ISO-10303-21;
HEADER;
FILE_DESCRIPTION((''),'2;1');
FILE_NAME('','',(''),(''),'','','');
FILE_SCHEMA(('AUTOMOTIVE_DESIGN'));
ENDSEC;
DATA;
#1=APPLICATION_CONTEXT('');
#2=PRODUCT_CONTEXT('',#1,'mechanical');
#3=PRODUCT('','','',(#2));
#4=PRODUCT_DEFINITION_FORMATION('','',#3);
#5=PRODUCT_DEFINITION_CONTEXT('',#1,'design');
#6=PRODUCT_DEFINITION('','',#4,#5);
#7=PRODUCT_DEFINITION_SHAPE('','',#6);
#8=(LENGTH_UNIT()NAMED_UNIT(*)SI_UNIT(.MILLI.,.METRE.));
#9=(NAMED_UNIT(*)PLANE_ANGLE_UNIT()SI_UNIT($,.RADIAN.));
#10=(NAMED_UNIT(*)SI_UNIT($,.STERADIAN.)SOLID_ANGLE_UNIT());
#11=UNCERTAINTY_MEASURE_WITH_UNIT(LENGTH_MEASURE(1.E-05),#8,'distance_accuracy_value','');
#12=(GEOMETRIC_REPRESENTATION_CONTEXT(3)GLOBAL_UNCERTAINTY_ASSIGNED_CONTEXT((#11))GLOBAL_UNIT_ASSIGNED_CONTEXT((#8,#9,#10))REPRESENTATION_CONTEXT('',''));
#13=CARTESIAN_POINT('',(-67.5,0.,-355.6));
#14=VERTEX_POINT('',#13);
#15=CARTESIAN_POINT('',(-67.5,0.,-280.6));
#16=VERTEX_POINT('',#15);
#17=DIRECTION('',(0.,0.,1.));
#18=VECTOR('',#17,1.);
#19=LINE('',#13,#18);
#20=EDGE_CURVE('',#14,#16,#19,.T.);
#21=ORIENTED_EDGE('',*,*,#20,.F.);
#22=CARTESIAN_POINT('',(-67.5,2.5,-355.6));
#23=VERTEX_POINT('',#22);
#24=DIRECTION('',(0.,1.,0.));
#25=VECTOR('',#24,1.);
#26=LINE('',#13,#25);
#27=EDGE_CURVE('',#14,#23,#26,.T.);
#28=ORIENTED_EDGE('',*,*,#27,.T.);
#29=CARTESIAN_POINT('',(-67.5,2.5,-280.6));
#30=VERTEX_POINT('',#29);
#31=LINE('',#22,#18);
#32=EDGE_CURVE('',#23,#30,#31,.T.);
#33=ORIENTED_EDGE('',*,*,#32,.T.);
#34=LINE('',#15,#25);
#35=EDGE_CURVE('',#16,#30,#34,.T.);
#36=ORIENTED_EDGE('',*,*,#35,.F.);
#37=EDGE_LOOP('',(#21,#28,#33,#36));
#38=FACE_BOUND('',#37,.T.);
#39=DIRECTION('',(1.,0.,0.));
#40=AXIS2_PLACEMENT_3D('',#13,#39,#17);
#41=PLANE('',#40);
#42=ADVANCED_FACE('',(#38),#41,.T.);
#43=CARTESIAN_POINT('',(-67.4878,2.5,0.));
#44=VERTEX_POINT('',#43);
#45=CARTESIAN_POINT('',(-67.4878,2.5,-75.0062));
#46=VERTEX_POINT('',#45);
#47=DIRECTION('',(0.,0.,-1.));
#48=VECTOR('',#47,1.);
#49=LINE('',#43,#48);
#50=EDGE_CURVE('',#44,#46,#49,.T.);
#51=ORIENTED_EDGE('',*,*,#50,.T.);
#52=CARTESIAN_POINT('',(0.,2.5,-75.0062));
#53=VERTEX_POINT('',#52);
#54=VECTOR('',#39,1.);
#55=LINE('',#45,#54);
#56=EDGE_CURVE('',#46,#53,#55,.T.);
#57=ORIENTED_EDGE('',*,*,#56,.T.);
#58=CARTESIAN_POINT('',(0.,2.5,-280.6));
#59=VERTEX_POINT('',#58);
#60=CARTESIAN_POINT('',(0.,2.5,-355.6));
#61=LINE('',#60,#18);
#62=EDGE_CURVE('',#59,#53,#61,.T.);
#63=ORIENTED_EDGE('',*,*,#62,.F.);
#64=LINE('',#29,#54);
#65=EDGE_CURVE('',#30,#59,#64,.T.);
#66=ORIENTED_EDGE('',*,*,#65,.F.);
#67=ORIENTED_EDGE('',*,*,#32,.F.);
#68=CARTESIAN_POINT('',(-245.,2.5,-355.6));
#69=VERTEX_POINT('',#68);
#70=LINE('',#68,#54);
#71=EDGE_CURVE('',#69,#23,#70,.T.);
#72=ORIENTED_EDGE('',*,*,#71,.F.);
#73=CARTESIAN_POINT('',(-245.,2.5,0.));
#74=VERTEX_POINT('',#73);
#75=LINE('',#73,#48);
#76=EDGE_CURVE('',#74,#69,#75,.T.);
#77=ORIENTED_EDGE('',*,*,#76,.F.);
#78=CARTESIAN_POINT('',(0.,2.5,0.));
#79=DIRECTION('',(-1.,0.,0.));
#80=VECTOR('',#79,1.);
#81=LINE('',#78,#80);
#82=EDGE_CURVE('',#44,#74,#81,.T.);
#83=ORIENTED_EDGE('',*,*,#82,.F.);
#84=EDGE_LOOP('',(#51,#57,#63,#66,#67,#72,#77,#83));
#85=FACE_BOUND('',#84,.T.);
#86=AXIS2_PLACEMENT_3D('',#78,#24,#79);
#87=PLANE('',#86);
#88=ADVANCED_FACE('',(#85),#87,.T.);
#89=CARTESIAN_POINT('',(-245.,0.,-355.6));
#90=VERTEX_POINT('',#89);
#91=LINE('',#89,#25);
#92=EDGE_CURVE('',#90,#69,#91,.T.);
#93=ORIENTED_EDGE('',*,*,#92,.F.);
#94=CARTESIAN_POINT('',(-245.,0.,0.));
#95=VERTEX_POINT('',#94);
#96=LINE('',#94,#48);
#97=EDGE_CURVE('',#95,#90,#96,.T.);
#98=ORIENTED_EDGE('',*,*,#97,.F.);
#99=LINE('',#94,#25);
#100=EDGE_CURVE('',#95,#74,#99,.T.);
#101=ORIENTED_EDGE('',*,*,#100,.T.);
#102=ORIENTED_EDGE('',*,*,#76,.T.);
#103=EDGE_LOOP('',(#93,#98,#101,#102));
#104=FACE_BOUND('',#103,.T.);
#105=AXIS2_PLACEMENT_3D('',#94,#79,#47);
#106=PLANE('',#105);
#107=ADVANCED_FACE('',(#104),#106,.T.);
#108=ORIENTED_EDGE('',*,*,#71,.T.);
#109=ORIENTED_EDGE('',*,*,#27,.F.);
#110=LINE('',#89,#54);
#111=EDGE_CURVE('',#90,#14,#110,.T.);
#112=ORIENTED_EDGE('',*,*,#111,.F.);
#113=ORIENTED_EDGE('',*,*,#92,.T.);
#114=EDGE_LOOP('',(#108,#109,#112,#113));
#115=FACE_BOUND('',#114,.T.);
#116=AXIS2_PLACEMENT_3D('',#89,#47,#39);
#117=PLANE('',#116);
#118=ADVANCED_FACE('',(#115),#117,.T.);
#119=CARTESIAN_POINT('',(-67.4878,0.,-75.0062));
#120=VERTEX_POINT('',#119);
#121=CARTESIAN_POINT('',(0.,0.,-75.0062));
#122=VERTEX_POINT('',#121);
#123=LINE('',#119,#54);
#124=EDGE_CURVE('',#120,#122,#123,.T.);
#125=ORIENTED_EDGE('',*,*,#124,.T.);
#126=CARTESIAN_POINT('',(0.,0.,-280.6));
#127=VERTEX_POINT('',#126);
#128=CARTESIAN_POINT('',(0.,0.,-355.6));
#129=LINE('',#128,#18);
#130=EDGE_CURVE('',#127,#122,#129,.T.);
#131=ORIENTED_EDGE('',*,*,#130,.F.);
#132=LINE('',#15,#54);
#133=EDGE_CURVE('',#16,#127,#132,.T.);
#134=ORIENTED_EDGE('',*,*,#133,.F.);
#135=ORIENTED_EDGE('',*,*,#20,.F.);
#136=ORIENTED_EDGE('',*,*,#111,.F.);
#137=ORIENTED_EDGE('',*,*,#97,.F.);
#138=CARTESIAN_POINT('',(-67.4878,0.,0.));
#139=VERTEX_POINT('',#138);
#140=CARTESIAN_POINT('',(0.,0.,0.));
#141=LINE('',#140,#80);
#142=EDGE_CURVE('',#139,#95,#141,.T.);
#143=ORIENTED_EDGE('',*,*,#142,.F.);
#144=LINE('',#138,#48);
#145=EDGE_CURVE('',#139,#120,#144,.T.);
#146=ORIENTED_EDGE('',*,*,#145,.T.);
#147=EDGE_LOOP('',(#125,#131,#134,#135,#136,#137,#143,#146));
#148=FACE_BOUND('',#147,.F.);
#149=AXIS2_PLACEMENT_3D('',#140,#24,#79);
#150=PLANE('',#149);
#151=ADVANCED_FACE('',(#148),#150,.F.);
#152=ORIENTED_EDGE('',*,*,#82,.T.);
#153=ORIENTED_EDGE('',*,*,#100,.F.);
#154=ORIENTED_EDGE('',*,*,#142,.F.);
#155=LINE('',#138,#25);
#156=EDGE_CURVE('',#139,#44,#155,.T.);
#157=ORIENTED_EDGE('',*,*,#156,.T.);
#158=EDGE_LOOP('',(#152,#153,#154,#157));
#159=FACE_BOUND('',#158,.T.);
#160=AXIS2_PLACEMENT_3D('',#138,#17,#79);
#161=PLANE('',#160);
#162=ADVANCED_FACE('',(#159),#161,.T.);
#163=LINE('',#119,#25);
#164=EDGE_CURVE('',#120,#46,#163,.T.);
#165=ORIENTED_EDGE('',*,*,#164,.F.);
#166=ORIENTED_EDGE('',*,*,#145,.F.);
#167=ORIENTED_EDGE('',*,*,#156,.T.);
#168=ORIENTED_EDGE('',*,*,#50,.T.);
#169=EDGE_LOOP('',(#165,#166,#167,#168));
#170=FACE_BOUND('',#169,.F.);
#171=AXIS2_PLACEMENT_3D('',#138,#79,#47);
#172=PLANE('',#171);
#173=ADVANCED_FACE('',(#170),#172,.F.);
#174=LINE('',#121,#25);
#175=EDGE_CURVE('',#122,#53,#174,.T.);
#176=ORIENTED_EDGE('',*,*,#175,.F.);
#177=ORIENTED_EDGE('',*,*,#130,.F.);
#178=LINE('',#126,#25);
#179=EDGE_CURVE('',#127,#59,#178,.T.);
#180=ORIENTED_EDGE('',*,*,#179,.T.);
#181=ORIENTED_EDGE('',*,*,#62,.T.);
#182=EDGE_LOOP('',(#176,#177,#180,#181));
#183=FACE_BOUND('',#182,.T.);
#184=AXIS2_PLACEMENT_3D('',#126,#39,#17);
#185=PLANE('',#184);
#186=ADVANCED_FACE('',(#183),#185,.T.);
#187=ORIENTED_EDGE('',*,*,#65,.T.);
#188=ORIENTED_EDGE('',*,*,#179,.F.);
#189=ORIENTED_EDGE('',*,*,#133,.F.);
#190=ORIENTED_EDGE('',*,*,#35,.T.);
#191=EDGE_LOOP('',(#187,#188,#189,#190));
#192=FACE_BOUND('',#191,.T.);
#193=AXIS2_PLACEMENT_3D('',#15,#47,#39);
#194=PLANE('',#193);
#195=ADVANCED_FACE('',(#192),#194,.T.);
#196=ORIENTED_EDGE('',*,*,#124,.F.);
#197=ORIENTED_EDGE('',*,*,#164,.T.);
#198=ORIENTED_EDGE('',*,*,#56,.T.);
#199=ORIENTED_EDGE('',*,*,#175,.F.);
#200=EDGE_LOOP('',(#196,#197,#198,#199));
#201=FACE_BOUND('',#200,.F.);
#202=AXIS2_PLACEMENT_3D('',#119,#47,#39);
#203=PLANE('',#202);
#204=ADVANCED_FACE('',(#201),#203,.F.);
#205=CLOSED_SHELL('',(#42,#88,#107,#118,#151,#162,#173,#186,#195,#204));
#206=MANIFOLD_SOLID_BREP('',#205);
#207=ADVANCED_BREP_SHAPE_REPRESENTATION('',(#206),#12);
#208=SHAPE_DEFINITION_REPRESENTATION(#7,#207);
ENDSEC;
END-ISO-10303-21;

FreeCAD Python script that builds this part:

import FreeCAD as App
import Part
import Sketcher
from FreeCAD import Vector
Q = App.Units.Quantity


def add_polygon(sketch, points):
    """Adds a closed chain of lines whose ends are joined by coincident constraints."""
    first, n = sketch.GeometryCount, len(points)
    for a, b in zip(points, points[1:] + points[:1]):
        sketch.addGeometry(Part.LineSegment(App.Vector(*a, 0), App.Vector(*b, 0)), False)
    for i in range(n):
        sketch.addConstraint(Sketcher.Constraint("Coincident", first + i, 2, first + (i + 1) % n, 1))

doc = App.newDocument("Part")
body = doc.addObject("PartDesign::Body", "Body")

# Sketch on XZ plane
sketch1 = doc.addObject("Sketcher::SketchObject", "Sketch")
body.addObject(sketch1)
sketch1.AttachmentSupport = (doc.XZ_Plane, [""])
sketch1.MapMode = "FlatFace"
add_polygon(sketch1, [(-245, 0), (-67, 0), (-67, -75), (0, -75), (0, -281), (-68, -281), (-68, -356), (-245, -356)])  # lines 0-7
sketch1.addConstraint([
    Sketcher.Constraint("Horizontal", 0),
    Sketcher.Constraint("Vertical", 1),
    Sketcher.Constraint("Horizontal", 2),
    Sketcher.Constraint("Vertical", 3),
    Sketcher.Constraint("Horizontal", 4),
    Sketcher.Constraint("Vertical", 5),
    Sketcher.Constraint("Horizontal", 6),
    Sketcher.Constraint("Vertical", 7),
    Sketcher.Constraint("PointOnObject", 0, 2, -1),
    Sketcher.Constraint("PointOnObject", 2, 2, -2),
    Sketcher.Constraint("DistanceY", 5, 2, 5, 1, Q("75 mm")),
    Sketcher.Constraint("DistanceX", 4, 2, 4, 1, Q("67.5 mm")),
    Sketcher.Constraint("DistanceY", 7, 1, 7, 2, Q("355.6 mm")),
    Sketcher.Constraint("DistanceX", 6, 2, -1, 1, Q("245 mm")),
    Sketcher.Constraint("DistanceX", 2, 1, 2, 2, Q("67.4878 mm")),
    Sketcher.Constraint("DistanceY", 1, 2, 1, 1, Q("75.0062 mm")),
])
pad1 = doc.addObject("PartDesign::Pad", "Pad")
body.addObject(pad1)
pad1.Profile = sketch1
pad1.Length = 2.5
pad1.Reversed = True

doc.recompute()
